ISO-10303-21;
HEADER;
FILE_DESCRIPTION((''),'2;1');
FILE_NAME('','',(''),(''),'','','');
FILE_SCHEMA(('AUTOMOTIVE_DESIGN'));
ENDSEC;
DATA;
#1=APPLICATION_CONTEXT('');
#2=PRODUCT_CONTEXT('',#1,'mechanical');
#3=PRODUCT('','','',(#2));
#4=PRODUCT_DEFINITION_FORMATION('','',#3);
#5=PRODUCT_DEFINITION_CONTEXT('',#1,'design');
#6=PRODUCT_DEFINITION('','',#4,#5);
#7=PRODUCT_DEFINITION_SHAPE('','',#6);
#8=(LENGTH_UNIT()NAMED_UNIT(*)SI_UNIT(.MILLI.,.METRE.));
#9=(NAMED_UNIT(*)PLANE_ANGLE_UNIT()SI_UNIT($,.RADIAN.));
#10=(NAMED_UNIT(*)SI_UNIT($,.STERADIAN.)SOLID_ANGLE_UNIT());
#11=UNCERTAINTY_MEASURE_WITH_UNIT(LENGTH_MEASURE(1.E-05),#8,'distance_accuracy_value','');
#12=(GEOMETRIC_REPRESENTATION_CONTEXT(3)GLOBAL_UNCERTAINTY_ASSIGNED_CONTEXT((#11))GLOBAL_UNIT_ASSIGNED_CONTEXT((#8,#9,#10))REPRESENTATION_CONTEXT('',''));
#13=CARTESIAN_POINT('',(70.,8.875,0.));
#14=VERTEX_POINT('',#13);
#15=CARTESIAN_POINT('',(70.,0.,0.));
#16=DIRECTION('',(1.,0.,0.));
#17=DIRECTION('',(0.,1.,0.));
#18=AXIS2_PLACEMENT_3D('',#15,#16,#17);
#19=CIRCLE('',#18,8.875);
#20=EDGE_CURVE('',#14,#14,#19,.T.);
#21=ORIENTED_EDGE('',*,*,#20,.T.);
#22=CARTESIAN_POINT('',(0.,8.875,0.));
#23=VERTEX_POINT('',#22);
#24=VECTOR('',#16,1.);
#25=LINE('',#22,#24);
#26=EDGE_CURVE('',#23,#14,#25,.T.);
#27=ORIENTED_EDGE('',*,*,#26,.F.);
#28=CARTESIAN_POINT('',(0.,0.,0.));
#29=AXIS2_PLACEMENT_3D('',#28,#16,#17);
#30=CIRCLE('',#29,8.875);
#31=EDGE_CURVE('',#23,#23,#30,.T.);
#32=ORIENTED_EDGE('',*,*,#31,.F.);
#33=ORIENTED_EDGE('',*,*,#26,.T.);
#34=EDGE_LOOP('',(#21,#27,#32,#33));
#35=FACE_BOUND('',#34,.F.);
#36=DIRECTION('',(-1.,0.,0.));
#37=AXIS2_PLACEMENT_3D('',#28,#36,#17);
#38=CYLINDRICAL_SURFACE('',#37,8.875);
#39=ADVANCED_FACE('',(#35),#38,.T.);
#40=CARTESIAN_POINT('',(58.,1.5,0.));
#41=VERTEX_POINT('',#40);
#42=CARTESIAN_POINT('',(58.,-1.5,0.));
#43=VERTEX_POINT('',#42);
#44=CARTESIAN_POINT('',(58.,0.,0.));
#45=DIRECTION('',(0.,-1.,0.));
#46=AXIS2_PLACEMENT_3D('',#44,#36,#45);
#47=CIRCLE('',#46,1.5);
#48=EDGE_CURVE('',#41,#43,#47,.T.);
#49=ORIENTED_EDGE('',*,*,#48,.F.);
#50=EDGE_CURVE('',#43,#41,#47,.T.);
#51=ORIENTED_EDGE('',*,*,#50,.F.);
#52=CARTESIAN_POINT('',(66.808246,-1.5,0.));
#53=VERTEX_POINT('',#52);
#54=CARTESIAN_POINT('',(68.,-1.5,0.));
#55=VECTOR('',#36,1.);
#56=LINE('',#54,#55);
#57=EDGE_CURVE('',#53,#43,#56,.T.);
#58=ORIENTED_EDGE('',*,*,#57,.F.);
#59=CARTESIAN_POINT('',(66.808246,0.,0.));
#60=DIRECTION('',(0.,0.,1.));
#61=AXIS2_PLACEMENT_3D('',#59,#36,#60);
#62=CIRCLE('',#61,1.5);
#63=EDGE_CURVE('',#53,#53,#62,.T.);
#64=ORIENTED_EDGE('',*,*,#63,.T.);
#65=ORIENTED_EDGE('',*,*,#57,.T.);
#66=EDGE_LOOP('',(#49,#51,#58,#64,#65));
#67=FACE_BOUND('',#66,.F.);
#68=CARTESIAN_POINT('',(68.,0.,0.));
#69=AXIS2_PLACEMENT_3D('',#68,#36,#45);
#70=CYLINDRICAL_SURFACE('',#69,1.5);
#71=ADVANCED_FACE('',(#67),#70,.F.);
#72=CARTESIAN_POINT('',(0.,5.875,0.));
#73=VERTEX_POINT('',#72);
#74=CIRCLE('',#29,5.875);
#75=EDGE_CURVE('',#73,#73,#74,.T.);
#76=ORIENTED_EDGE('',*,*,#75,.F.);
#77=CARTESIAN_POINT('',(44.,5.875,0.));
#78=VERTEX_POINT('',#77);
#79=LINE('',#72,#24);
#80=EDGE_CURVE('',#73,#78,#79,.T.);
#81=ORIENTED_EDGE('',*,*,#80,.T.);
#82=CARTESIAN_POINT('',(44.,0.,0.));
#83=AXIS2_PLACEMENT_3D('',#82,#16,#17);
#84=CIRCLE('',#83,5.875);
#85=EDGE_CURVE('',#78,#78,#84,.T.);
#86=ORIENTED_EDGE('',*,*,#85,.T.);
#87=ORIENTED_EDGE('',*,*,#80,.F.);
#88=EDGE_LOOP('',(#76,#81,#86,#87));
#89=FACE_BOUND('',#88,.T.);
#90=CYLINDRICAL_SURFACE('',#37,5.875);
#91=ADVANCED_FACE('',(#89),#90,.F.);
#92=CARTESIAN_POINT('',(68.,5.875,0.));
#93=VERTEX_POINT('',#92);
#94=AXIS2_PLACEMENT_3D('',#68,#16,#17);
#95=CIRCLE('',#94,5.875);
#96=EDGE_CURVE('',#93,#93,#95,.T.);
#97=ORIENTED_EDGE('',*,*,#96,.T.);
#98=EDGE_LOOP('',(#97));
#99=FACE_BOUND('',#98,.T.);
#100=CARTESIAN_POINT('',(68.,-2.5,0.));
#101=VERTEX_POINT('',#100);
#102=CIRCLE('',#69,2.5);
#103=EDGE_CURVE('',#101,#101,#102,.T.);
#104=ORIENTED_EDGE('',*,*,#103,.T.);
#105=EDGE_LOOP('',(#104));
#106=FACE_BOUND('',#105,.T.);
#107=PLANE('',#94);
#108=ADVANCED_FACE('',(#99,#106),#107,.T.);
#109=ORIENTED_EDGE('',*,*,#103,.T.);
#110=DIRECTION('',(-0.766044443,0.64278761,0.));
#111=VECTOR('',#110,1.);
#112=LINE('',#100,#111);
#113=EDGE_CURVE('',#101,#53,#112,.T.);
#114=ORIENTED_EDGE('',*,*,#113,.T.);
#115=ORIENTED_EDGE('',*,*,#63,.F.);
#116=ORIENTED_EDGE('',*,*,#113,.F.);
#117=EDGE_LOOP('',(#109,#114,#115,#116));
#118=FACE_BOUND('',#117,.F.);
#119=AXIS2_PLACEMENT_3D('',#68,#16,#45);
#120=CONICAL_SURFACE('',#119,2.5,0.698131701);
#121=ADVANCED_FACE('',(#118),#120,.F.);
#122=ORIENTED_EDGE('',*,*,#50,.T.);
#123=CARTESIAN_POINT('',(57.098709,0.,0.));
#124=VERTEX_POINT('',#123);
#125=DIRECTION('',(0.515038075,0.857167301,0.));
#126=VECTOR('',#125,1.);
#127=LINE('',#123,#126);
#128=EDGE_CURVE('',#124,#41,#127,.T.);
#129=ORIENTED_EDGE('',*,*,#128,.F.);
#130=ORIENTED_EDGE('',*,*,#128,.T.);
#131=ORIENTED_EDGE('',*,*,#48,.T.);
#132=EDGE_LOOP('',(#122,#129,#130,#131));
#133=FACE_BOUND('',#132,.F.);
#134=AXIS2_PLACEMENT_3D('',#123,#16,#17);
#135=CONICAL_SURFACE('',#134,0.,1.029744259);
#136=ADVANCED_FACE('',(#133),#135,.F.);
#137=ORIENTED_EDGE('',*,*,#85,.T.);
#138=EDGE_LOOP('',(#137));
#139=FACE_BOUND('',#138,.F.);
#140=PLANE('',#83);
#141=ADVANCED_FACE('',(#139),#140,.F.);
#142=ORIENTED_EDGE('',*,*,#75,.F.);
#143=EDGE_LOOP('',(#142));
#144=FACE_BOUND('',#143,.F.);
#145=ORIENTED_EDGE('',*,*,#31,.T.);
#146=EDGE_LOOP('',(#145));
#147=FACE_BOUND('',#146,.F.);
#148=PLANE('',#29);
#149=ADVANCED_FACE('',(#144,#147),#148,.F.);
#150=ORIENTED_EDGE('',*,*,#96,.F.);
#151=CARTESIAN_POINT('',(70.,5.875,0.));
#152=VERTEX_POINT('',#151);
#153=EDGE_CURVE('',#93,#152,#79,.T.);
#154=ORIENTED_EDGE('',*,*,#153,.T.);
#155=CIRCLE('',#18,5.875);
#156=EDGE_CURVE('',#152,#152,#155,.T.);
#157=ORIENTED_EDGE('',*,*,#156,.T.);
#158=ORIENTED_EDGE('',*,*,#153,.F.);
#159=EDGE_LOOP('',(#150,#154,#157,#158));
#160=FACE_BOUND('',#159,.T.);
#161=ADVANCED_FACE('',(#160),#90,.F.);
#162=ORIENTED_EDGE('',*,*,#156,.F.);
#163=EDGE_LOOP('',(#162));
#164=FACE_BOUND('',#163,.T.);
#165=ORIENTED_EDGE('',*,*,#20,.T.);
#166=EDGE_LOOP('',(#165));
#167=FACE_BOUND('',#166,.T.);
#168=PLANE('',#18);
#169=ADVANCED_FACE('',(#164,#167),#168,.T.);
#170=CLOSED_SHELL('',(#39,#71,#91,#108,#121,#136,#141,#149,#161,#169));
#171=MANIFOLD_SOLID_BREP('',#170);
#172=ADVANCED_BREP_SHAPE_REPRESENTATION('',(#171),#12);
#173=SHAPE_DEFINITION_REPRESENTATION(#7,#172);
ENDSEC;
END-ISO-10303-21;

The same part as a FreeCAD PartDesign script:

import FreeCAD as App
import Part
import Sketcher

V = App.Vector
Q = App.Units.Quantity

doc = App.newDocument("Part")
params = doc.addObject("Spreadsheet::Sheet", "Params")
for row, (alias, value) in enumerate([
    ("sketch1_diameter", "17.75 mm"),
    ("sketch1_diameter2", "11.75 mm"),
    ("pad1_length", "70 mm"),
    ("sketch2_diameter", "11.75 mm"),
    ("pad2_length", "24 mm"),
    ("sketch3_diameter", "3 mm"),
    ("hole_diameter", "3 mm"),
    ("hole_depth", "10 mm"),
    ("hole_csink_diameter", "5 mm"),
], start=1):
    params.set(f"A{row}", alias)
    params.set(f"B{row}", "=" + value)
    params.setAlias(f"B{row}", alias)

body = doc.addObject("PartDesign::Body", "Body")

# Sketch on YZ plane
sketch1 = body.newObject("Sketcher::SketchObject", "Sketch")
sketch1.AttachmentSupport = (doc.getObject("YZ_Plane"), [""])
sketch1.MapMode = "FlatFace"
sketch1.addGeometry([
    Part.Circle(V(0, 0, 0), V(0, 0, 1), 9),
    Part.Circle(V(0, 0, 0), V(0, 0, 1), 6),
], False)
sketch1.addConstraint([
    Sketcher.Constraint("Coincident", 0, 3, -1, 1),
    Sketcher.Constraint("Coincident", 1, 3, -1, 1),
    Sketcher.Constraint("Diameter", 0, Q("17.75 mm")),
    Sketcher.Constraint("Diameter", 1, Q("11.75 mm")),
])
sketch1.setExpression("Constraints[2]", "Params.sketch1_diameter")
sketch1.setExpression("Constraints[3]", "Params.sketch1_diameter2")
pad1 = body.newObject("PartDesign::Pad", "Pad")
pad1.Profile = sketch1
pad1.setExpression("Length", "Params.pad1_length")

# Sketch on YZ plane
sketch2 = body.newObject("Sketcher::SketchObject", "Sketch001")
sketch2.AttachmentSupport = (doc.getObject("YZ_Plane"), [""])
sketch2.MapMode = "FlatFace"
sketch2.AttachmentOffset = App.Placement(V(0, 0, 44), App.Rotation())
sketch2.addGeometry(Part.Circle(V(0, 0, 0), V(0, 0, 1), 6), False)
sketch2.addConstraint([
    Sketcher.Constraint("Coincident", 0, 3, -1, 1),
    Sketcher.Constraint("Diameter", 0, Q("11.75 mm")),
])
sketch2.setExpression("Constraints[1]", "Params.sketch2_diameter")
pad2 = body.newObject("PartDesign::Pad", "Pad001")
pad2.Profile = sketch2
pad2.setExpression("Length", "Params.pad2_length")

# Sketch on YZ plane
sketch3 = body.newObject("Sketcher::SketchObject", "Sketch002")
sketch3.AttachmentSupport = (doc.getObject("YZ_Plane"), [""])
sketch3.MapMode = "FlatFace"
sketch3.AttachmentOffset = App.Placement(V(0, 0, 68), App.Rotation())
sketch3.addGeometry(Part.Circle(V(0, 0, 0), V(0, 0, 1), 1.5), False)
sketch3.addConstraint([
    Sketcher.Constraint("Coincident", 0, 3, -1, 1),
    Sketcher.Constraint("Diameter", 0, Q("3 mm")),
])
sketch3.setExpression("Constraints[1]", "Params.sketch3_diameter")
doc.recompute()
hole = body.newObject("PartDesign::Hole", "Hole")
hole.Profile = sketch3
hole.ThreadType = "None"
hole.setExpression("Diameter", "Params.hole_diameter")
hole.DepthType = "Dimension"
hole.setExpression("Depth", "Params.hole_depth")
hole.DrillPoint = "Angled"
hole.DrillPointAngle = 118
hole.HoleCutType = "Countersink"
hole.setExpression("HoleCutDiameter", "Params.hole_csink_diameter")
hole.HoleCutCountersinkAngle = 80

doc.recompute()
